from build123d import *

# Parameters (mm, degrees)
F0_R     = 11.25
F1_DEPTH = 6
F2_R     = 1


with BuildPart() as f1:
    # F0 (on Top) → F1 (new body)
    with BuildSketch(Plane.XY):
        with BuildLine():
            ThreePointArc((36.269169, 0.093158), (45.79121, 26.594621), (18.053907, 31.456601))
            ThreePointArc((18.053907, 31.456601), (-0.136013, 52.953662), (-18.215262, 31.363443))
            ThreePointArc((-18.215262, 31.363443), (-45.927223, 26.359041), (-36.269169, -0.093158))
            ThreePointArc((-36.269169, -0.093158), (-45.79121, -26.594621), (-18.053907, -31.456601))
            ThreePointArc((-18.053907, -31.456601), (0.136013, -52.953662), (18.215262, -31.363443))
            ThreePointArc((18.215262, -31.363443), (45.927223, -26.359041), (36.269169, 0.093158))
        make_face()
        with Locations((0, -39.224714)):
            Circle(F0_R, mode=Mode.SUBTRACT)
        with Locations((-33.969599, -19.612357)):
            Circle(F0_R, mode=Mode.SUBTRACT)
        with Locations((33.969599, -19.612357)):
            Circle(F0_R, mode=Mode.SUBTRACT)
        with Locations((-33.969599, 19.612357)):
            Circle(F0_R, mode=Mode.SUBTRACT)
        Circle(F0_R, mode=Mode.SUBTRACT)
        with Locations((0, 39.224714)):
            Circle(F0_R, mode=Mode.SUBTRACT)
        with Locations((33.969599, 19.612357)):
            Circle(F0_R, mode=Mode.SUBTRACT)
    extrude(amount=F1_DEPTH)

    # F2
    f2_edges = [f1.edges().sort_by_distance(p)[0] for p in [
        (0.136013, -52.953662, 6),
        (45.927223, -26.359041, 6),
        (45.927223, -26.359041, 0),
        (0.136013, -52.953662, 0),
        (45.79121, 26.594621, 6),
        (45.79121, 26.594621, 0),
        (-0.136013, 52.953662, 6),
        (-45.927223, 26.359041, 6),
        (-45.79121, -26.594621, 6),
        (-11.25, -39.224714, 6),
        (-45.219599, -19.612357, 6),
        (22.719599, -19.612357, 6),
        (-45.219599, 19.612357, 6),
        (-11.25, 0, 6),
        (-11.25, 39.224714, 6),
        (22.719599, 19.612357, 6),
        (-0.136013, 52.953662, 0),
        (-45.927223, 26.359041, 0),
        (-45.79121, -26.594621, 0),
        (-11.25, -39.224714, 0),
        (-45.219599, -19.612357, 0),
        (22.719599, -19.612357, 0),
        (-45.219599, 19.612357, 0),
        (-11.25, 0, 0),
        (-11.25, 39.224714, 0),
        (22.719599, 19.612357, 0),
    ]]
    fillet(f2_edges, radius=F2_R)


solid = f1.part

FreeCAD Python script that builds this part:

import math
import FreeCAD as App
import Part
import Sketcher

V = App.Vector


def edges_at(feature, points):
    """Names of the edges that pass closest to the given points."""
    edges = feature.Shape.Edges
    near = lambda p: min(range(len(edges)), key=lambda i: edges[i].distToShape(Part.Vertex(*p))[0])
    return sorted({f"Edge{near(p) + 1}" for p in points})

doc = App.newDocument("Part")
params = doc.addObject("Spreadsheet::Sheet", "Params")
for row, (alias, value) in enumerate([
    ("sketch1_diameter", "22.5 mm"),
    ("pad1_length", "6 mm"),
    ("fillet_radius", "1 mm"),
], start=1):
    params.set(f"A{row}", alias)
    params.set(f"B{row}", "=" + value)
    params.setAlias(f"B{row}", alias)

body = doc.addObject("PartDesign::Body", "Body")

sketch1 = body.newObject("Sketcher::SketchObject", "Sketch")
sketch1.AttachmentSupport = (doc.getObject("XY_Plane"), [""])
sketch1.MapMode = "FlatFace"
sketch1.addGeometry(Part.ArcOfCircle(Part.Circle(V(30, 17, 0), V(0, 0, 1), 18), math.radians(-70), math.radians(130)), False)
sketch1.addGeometry(Part.ArcOfCircle(Part.Circle(V(0, 35, 0), V(0, 0, 1), 18), math.radians(-10), math.radians(190)), False)
sketch1.addGeometry(Part.ArcOfCircle(Part.Circle(V(-30, 17, 0), V(0, 0, 1), 18), math.radians(50), math.radians(250)), False)
sketch1.addGeometry(Part.ArcOfCircle(Part.Circle(V(-30, -17, 0), V(0, 0, 1), 18), math.radians(110), math.radians(310)), False)
sketch1.addGeometry(Part.ArcOfCircle(Part.Circle(V(0, -35, 0), V(0, 0, 1), 18), math.radians(170), math.radians(370)), False)
sketch1.addGeometry(Part.ArcOfCircle(Part.Circle(V(30, -17, 0), V(0, 0, 1), 18), math.radians(-130), math.radians(70)), False)
sketch1.addGeometry(Part.Circle(V(-34, -20, 0), V(0, 0, 1), 11), False)
sketch1.addGeometry(Part.Circle(V(0, -39, 0), V(0, 0, 1), 11), False)
sketch1.addGeometry(Part.Circle(V(0, 0, 0), V(0, 0, 1), 11), False)
sketch1.addGeometry(Part.Circle(V(34, -20, 0), V(0, 0, 1), 11), False)
sketch1.addGeometry(Part.Circle(V(-34, 20, 0), V(0, 0, 1), 11), False)
sketch1.addGeometry(Part.Circle(V(34, 20, 0), V(0, 0, 1), 11), False)
sketch1.addGeometry(Part.Circle(V(0, 39, 0), V(0, 0, 1), 11), False)
sketch1.addConstraint(Sketcher.Constraint("Coincident", 0, 2, 1, 1))
sketch1.addConstraint(Sketcher.Constraint("Coincident", 1, 2, 2, 1))
sketch1.addConstraint(Sketcher.Constraint("Coincident", 2, 2, 3, 1))
sketch1.addConstraint(Sketcher.Constraint("Coincident", 3, 2, 4, 1))
sketch1.addConstraint(Sketcher.Constraint("Coincident", 4, 2, 5, 1))
sketch1.addConstraint(Sketcher.Constraint("Coincident", 5, 2, 0, 1))
sketch1.addConstraint(Sketcher.Constraint("Coincident", 8, 3, -1, 1))
sketch1.addConstraint(Sketcher.Constraint("Equal", 0, 1))
sketch1.addConstraint(Sketcher.Constraint("Equal", 1, 2))
sketch1.addConstraint(Sketcher.Constraint("Equal", 2, 3))
sketch1.addConstraint(Sketcher.Constraint("Equal", 3, 4))
sketch1.addConstraint(Sketcher.Constraint("Equal", 4, 5))
sketch1.addConstraint(Sketcher.Constraint("Equal", 6, 7))
sketch1.addConstraint(Sketcher.Constraint("Equal", 7, 8))
sketch1.addConstraint(Sketcher.Constraint("Equal", 8, 9))
sketch1.addConstraint(Sketcher.Constraint("Equal", 9, 10))
sketch1.addConstraint(Sketcher.Constraint("Equal", 10, 11))
sketch1.addConstraint(Sketcher.Constraint("Equal", 11, 12))
sketch1.addConstraint(Sketcher.Constraint("Symmetric", 0, 3, 3, 3, -1, 1))
sketch1.addConstraint(Sketcher.Constraint("Symmetric", 1, 3, 4, 3, -1, 1))
sketch1.addConstraint(Sketcher.Constraint("Symmetric", 2, 3, 5, 3, -1, 1))
sketch1.addConstraint(Sketcher.Constraint("Symmetric", 9, 3, 10, 3, -1, 1))
sketch1.addConstraint(Sketcher.Constraint("Symmetric", 6, 3, 11, 3, -1, 1))
sketch1.addConstraint(Sketcher.Constraint("Symmetric", 7, 3, 12, 3, -1, 1))
sketch1.addConstraint(Sketcher.Constraint("Symmetric", 6, 3, 9, 3, -2))
sketch1.addConstraint(Sketcher.Constraint("PointOnObject", 7, 3, -2))
sketch1.addConstraint(Sketcher.Constraint("Diameter", 6, 22.5))
sketch1.addConstraint(Sketcher.Constraint("Radius", 0, 18.404369))
sketch1.addConstraint(Sketcher.Constraint("DistanceX", 6, 3, -1, 1, 33.969599))
sketch1.addConstraint(Sketcher.Constraint("DistanceY", -1, 1, 0, 2, 31.456601))
sketch1.addConstraint(Sketcher.Constraint("DistanceY", 6, 3, 2, 2, 19.519199))
sketch1.addConstraint(Sketcher.Constraint("DistanceY", -1, 1, 0, 3, 17.351528))
sketch1.addConstraint(Sketcher.Constraint("DistanceX", 1, 3, -1, 1, 0.088741))
sketch1.addConstraint(Sketcher.Constraint("DistanceX", 2, 3, -1, 1, 29.964989))
sketch1.addConstraint(Sketcher.Constraint("DistanceX", 2, 2, -1, 1, 36.269169))
sketch1.addConstraint(Sketcher.Constraint("DistanceX", 1, 3, 0, 3, 29.964988))
sketch1.addConstraint(Sketcher.Constraint("DistanceY", 7, 3, 4, 3, 4.67536))
sketch1.setExpression("Constraints[26]", "Params.sketch1_diameter")
pad1 = body.newObject("PartDesign::Pad", "Pad")
pad1.Profile = sketch1
pad1.setExpression("Length", "Params.pad1_length")
doc.recompute()

fillet = body.newObject("PartDesign::Fillet", "Fillet")
fillet.Base = (pad1, edges_at(pad1, [
    (0.136, -52.954, 6),
    (45.927, -26.359, 6),
    (45.927, -26.359, 0),
    (0.136, -52.954, 0),
    (45.791, 26.595, 6),
    (45.791, 26.595, 0),
    (-0.136, 52.954, 6),
    (-45.927, 26.359, 6),
    (-45.791, -26.595, 6),
    (-11.25, -39.225, 6),
    (-45.22, -19.612, 6),
    (22.72, -19.612, 6),
    (-45.22, 19.612, 6),
    (-11.25, 0, 6),
    (-11.25, 39.225, 6),
    (22.72, 19.612, 6),
    (-0.136, 52.954, 0),
    (-45.927, 26.359, 0),
    (-45.791, -26.595, 0),
    (-11.25, -39.225, 0),
    (-45.22, -19.612, 0),
    (22.72, -19.612, 0),
    (-45.22, 19.612, 0),
    (-11.25, 0, 0),
    (-11.25, 39.225, 0),
    (22.72, 19.612, 0),
]))
fillet.setExpression("Radius", "Params.fillet_radius")

doc.recompute()
